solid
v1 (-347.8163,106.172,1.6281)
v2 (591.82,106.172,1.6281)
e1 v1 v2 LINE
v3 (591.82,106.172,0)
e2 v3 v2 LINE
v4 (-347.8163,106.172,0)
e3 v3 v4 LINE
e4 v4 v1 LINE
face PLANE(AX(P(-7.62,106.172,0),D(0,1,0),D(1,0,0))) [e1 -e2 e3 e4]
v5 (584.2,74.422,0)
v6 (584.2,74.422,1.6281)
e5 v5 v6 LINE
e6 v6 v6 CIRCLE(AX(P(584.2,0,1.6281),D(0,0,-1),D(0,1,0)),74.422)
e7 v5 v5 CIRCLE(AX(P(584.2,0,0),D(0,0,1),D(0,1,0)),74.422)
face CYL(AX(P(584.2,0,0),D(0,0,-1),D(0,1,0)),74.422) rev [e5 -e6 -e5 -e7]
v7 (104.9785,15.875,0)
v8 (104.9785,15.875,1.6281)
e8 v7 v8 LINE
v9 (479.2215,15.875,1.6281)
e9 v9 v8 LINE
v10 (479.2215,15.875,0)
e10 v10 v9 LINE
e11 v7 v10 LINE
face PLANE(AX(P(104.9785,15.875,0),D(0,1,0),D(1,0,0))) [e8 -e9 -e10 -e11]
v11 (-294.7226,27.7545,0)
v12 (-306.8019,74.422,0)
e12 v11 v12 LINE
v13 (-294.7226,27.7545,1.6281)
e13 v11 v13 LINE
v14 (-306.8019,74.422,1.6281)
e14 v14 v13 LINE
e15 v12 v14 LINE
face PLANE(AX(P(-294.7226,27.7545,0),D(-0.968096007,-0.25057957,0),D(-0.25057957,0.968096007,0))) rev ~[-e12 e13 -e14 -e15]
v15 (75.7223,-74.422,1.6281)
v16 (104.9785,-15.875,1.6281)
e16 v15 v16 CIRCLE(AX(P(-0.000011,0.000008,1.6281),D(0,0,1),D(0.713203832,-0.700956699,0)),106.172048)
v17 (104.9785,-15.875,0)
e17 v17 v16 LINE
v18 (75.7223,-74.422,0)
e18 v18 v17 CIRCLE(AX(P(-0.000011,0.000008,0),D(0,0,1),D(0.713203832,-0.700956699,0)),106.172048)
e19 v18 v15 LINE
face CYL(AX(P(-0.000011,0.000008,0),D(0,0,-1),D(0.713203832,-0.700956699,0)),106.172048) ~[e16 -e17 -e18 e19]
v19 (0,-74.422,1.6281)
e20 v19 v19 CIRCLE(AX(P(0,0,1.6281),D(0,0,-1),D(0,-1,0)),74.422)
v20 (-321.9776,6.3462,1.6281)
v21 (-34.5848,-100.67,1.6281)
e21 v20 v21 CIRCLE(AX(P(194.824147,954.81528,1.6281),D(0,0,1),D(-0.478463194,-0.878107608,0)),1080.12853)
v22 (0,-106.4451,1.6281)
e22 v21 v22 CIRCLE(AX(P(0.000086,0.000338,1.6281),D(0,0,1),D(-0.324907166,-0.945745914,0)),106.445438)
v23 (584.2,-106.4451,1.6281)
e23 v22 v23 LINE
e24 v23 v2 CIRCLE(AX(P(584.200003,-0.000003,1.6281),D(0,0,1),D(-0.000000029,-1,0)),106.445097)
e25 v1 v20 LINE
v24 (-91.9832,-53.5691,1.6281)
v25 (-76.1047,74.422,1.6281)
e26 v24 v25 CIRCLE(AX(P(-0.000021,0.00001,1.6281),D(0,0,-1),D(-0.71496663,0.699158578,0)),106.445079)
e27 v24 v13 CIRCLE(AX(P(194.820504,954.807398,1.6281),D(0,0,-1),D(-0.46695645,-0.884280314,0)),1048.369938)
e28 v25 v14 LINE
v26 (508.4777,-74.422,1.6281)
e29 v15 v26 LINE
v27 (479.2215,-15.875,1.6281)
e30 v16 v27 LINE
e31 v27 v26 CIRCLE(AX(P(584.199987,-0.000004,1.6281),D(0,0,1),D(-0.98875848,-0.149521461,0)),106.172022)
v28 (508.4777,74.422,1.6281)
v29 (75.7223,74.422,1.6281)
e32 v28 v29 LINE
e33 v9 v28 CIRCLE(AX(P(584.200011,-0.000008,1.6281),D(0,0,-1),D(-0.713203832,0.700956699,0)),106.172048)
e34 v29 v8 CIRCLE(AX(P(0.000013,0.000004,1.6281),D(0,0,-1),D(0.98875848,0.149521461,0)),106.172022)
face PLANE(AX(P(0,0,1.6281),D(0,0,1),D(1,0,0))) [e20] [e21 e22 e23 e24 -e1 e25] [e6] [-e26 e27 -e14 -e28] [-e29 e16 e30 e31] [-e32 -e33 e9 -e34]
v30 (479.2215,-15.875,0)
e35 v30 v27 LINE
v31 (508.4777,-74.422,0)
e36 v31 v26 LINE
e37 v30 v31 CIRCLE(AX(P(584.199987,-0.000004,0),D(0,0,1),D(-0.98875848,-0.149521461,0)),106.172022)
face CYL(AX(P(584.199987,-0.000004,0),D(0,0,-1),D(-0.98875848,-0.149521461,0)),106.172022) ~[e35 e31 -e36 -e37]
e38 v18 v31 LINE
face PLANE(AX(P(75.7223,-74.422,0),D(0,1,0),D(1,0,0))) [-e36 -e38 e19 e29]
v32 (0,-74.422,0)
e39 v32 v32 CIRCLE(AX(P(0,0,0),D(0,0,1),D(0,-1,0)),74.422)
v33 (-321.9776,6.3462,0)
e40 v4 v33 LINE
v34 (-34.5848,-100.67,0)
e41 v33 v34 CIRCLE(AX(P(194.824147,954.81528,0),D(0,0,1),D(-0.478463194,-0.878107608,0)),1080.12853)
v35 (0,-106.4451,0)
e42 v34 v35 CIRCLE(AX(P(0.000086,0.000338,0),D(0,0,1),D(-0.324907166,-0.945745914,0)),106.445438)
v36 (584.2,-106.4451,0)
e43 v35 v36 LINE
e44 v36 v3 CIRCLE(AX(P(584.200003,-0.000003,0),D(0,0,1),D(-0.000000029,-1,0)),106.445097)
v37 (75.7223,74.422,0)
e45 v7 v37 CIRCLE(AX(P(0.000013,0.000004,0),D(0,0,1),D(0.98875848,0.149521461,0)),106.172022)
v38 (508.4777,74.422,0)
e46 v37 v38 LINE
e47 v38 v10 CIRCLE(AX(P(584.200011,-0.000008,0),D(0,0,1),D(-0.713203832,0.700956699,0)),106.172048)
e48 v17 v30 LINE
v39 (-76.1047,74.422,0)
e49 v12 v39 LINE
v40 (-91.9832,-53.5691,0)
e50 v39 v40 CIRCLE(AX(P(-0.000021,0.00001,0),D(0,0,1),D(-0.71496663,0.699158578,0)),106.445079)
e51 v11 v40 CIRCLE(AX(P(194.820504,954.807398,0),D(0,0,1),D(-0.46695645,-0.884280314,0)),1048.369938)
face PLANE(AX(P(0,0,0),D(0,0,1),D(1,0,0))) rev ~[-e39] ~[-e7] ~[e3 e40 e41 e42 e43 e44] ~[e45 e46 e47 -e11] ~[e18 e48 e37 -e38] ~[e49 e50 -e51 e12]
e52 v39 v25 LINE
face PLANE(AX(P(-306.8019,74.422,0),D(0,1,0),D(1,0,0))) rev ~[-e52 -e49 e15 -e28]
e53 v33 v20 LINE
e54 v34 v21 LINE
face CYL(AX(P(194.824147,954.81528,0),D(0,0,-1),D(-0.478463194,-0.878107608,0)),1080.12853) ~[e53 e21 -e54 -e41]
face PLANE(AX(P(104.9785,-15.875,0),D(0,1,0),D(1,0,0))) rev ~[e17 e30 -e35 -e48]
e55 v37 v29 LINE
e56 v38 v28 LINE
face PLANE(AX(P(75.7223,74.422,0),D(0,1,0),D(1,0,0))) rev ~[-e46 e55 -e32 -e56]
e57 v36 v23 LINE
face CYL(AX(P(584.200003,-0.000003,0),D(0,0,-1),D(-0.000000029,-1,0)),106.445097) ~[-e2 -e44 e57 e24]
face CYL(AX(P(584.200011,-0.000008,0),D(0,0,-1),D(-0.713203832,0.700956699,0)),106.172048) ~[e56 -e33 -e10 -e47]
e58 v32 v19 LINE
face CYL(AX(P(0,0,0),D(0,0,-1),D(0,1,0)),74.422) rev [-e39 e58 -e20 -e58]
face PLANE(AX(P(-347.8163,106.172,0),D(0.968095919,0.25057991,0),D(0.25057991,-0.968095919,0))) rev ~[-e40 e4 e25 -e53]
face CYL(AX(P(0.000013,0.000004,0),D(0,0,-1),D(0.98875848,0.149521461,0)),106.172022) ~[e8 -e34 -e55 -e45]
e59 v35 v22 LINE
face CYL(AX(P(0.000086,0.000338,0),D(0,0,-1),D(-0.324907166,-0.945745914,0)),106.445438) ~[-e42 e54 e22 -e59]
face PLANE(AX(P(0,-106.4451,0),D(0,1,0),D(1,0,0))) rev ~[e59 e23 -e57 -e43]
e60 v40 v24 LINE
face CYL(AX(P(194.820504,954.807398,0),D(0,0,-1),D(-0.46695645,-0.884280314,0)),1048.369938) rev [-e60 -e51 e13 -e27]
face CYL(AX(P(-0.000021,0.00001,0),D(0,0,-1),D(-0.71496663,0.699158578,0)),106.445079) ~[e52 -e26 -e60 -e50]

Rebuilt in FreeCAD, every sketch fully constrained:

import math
import FreeCAD as App
import Part
import Sketcher

V = App.Vector
Q = App.Units.Quantity

doc = App.newDocument("Part")
body = doc.addObject("PartDesign::Body", "Body")

sketch1 = body.newObject("Sketcher::SketchObject", "Sketch")
sketch1.AttachmentSupport = (doc.getObject("XY_Plane"), [""])
sketch1.MapMode = "FlatFace"
sketch1.addGeometry([
    Part.LineSegment(V(592, 106, 0), V(-348, 106, 0)),
    Part.LineSegment(V(-348, 106, 0), V(-322, 6, 0)),
    Part.ArcOfCircle(Part.Circle(V(195, 955, 0), V(0, 0, 1), 1080), math.radians(-118.59), math.radians(-102.26)),
    Part.ArcOfCircle(Part.Circle(V(0, 0, 0), V(0, 0, 1), 106), math.radians(-108.96), math.radians(-90)),
    Part.LineSegment(V(0, -106, 0), V(584, -106, 0)),
    Part.ArcOfCircle(Part.Circle(V(584, 0, 0), V(0, 0, 1), 106), math.radians(-90), math.radians(86)),
    Part.LineSegment(V(508, -74, 0), V(76, -74, 0)),
    Part.ArcOfCircle(Part.Circle(V(0, 0, 0), V(0, 0, 1), 106), math.radians(-45), math.radians(-9)),
    Part.LineSegment(V(105, -16, 0), V(479, -16, 0)),
    Part.ArcOfCircle(Part.Circle(V(584, 0, 0), V(0, 0, 1), 106), math.radians(-171), math.radians(-135)),
], False)
sketch1.addConstraint([
    Sketcher.Constraint("Coincident", 0, 2, 1, 1),
    Sketcher.Constraint("Coincident", 1, 2, 2, 1),
    Sketcher.Constraint("Coincident", 2, 2, 3, 1),
    Sketcher.Constraint("Tangent", 3, 2, 4, 1),
    Sketcher.Constraint("Tangent", 4, 2, 5, 1),
    Sketcher.Constraint("Coincident", 5, 2, 0, 1),
    Sketcher.Constraint("Coincident", 6, 2, 7, 1),
    Sketcher.Constraint("Coincident", 7, 2, 8, 1),
    Sketcher.Constraint("Coincident", 8, 2, 9, 1),
    Sketcher.Constraint("Coincident", 9, 2, 6, 1),
    Sketcher.Constraint("Horizontal", 0),
    Sketcher.Constraint("Horizontal", 4),
    Sketcher.Constraint("Horizontal", 6),
    Sketcher.Constraint("Horizontal", 8),
    Sketcher.Constraint("Coincident", 3, 3, -1, 1),
    Sketcher.Constraint("Coincident", 7, 3, -1, 1),
    Sketcher.Constraint("Coincident", 9, 3, 5, 3),
    Sketcher.Constraint("Equal", 3, 5),
    Sketcher.Constraint("Equal", 7, 9),
    Sketcher.Constraint("DistanceX", 4, 1, 4, 2, Q("23 in")),
    Sketcher.Constraint("Radius", 7, Q("4.18 in")),
    Sketcher.Constraint("DistanceY", -1, 1, 0, 2, Q("4.18 in")),
    Sketcher.Constraint("DistanceX", -1, 1, 5, 2, Q("23.3 in")),
    Sketcher.Constraint("DistanceY", 6, 2, -1, 1, Q("2.93 in")),
    Sketcher.Constraint("Radius", 2, 1080.1285),
    Sketcher.Constraint("DistanceX", -1, 1, 7, 2, Q("4.133 in")),
    Sketcher.Constraint("DistanceX", 0, 2, 0, 1, 939.6363),
    Sketcher.Constraint("DistanceX", 2, 2, -1, 1, Q("1.3616 in")),
    Sketcher.Constraint("DistanceX", 0, 2, 2, 3, Q("21.3638 in")),
    Sketcher.Constraint("DistanceY", 3, 2, 1, 2, Q("4.4406 in")),
])
pad1 = body.newObject("PartDesign::Pad", "Pad")
pad1.Profile = sketch1
pad1.Length = Q("0.0640984 in")

sketch2 = body.newObject("Sketcher::SketchObject", "Sketch001")
sketch2.AttachmentSupport = (doc.getObject("XY_Plane"), [""])
sketch2.MapMode = "FlatFace"
sketch2.addGeometry(Part.Circle(V(0, 0, 0), V(0, 0, 1), 74), False)
sketch2.addConstraint([
    Sketcher.Constraint("Coincident", 0, 3, -1, 1),
    Sketcher.Constraint("Diameter", 0, Q("5.86 in")),
])
pocket1 = body.newObject("PartDesign::Pocket", "Pocket")
pocket1.Profile = sketch2
pocket1.Type = "ThroughAll"
pocket1.Reversed = True

sketch3 = body.newObject("Sketcher::SketchObject", "Sketch002")
sketch3.AttachmentSupport = (doc.getObject("XY_Plane"), [""])
sketch3.MapMode = "FlatFace"
sketch3.addGeometry(Part.Circle(V(584, 0, 0), V(0, 0, 1), 74), False)
sketch3.addConstraint([
    Sketcher.Constraint("PointOnObject", 0, 3, -1),
    Sketcher.Constraint("DistanceX", -1, 1, 0, 3, Q("23 in")),
    Sketcher.Constraint("Diameter", 0, Q("5.86 in")),
])
pocket2 = body.newObject("PartDesign::Pocket", "Pocket001")
pocket2.Profile = sketch3
pocket2.Type = "ThroughAll"
pocket2.Reversed = True

sketch4 = body.newObject("Sketcher::SketchObject", "Sketch003")
sketch4.AttachmentSupport = (doc.getObject("XY_Plane"), [""])
sketch4.MapMode = "FlatFace"
sketch4.addGeometry([
    Part.LineSegment(V(508, 74, 0), V(76, 74, 0)),
    Part.ArcOfCircle(Part.Circle(V(0, 0, 0), V(0, 0, 1), 106), math.radians(9), math.radians(45)),
    Part.LineSegment(V(105, 16, 0), V(479, 16, 0)),
    Part.ArcOfCircle(Part.Circle(V(584, 0, 0), V(0, 0, 1), 106), math.radians(135), math.radians(171)),
], False)
sketch4.addConstraint([
    Sketcher.Constraint("Coincident", 0, 2, 1, 2),
    Sketcher.Constraint("Coincident", 1, 1, 2, 1),
    Sketcher.Constraint("Coincident", 2, 2, 3, 2),
    Sketcher.Constraint("Coincident", 3, 1, 0, 1),
    Sketcher.Constraint("Horizontal", 0),
    Sketcher.Constraint("Horizontal", 2),
    Sketcher.Constraint("Coincident", 1, 3, -1, 1),
    Sketcher.Constraint("Equal", 1, 3),
    Sketcher.Constraint("PointOnObject", 3, 3, -1),
    Sketcher.Constraint("Radius", 1, Q("4.18 in")),
    Sketcher.Constraint("DistanceX", -1, 1, 3, 3, Q("23 in")),
    Sketcher.Constraint("DistanceY", -1, 1, 0, 2, Q("2.93 in")),
    Sketcher.Constraint("DistanceX", -1, 1, 1, 1, Q("4.133 in")),
])
pocket3 = body.newObject("PartDesign::Pocket", "Pocket002")
pocket3.Profile = sketch4
pocket3.Type = "ThroughAll"
pocket3.Reversed = True

sketch5 = body.newObject("Sketcher::SketchObject", "Sketch004")
sketch5.AttachmentSupport = (doc.getObject("XY_Plane"), [""])
sketch5.MapMode = "FlatFace"
sketch5.addGeometry([
    Part.LineSegment(V(-307, 74, 0), V(-295, 28, 0)),
    Part.ArcOfCircle(Part.Circle(V(195, 955, 0), V(0, 0, 1), 1048), math.radians(-117.84), math.radians(-105.88)),
    Part.ArcOfCircle(Part.Circle(V(0, 0, 0), V(0, 0, 1), 106), math.radians(136), math.radians(210)),
    Part.LineSegment(V(-76, 74, 0), V(-307, 74, 0)),
], False)
sketch5.addConstraint([
    Sketcher.Constraint("Coincident", 0, 2, 1, 1),
    Sketcher.Constraint("Coincident", 1, 2, 2, 2),
    Sketcher.Constraint("Coincident", 2, 1, 3, 1),
    Sketcher.Constraint("Coincident", 3, 2, 0, 1),
    Sketcher.Constraint("Horizontal", 3),
    Sketcher.Constraint("Coincident", 2, 3, -1, 1),
    Sketcher.Constraint("Radius", 1, Q("41.2744 in")),
    Sketcher.Constraint("DistanceY", -1, 1, 2, 1, Q("2.93 in")),
    Sketcher.Constraint("Radius", 2, 106.445),
    Sketcher.Constraint("DistanceX", 0, 2, 2, 1, Q("8.607 in")),
    Sketcher.Constraint("DistanceX", 3, 2, 3, 1, 230.6972),
    Sketcher.Constraint("DistanceX", -1, 1, 1, 3, Q("7.6701 in")),
    Sketcher.Constraint("DistanceY", -1, 1, 0, 2, Q("1.0927 in")),
])
pocket4 = body.newObject("PartDesign::Pocket", "Pocket003")
pocket4.Profile = sketch5
pocket4.Type = "ThroughAll"
pocket4.Reversed = True

doc.recompute()
